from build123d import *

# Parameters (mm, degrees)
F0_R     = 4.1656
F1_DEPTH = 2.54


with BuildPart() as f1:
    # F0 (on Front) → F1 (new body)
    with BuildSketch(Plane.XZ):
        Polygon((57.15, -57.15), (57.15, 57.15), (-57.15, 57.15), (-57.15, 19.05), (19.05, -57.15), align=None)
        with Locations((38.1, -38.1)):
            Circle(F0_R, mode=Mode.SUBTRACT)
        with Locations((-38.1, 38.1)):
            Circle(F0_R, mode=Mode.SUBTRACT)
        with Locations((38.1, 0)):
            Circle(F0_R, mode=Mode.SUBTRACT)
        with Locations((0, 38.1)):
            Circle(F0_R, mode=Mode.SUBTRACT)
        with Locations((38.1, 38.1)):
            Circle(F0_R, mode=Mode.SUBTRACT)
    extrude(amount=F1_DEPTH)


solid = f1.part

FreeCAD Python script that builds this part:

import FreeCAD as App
import Part
import Sketcher

V = App.Vector
Q = App.Units.Quantity


def add_polygon(sketch, points):
    """Adds a closed chain of lines whose ends are joined by coincident constraints."""
    first, n = sketch.GeometryCount, len(points)
    for a, b in zip(points, points[1:] + points[:1]):
        sketch.addGeometry(Part.LineSegment(App.Vector(*a, 0), App.Vector(*b, 0)), False)
    for i in range(n):
        sketch.addConstraint(Sketcher.Constraint("Coincident", first + i, 2, first + (i + 1) % n, 1))

doc = App.newDocument("Part")
body = doc.addObject("PartDesign::Body", "Body")

# Sketch on XZ plane
sketch1 = doc.addObject("Sketcher::SketchObject", "Sketch")
body.addObject(sketch1)
sketch1.AttachmentSupport = (doc.XZ_Plane, [""])
sketch1.MapMode = "FlatFace"
add_polygon(sketch1, [(57.15, -57.15), (57.15, 57.15), (-57.15, 57.15), (-57.15, 19.05), (19.05, -57.15)])  # lines 0-4
sketch1.addGeometry(Part.Circle(V(38.1, -38.1, 0), V(0, 0, 1), 4.1656), False)  # 5
sketch1.addGeometry(Part.Circle(V(-38.1, 38.1, 0), V(0, 0, 1), 4.1656), False)  # 6
sketch1.addGeometry(Part.Circle(V(38.1, 0, 0), V(0, 0, 1), 4.1656), False)  # 7
sketch1.addGeometry(Part.Circle(V(0, 38.1, 0), V(0, 0, 1), 4.1656), False)  # 8
sketch1.addGeometry(Part.Circle(V(38.1, 38.1, 0), V(0, 0, 1), 4.1656), False)  # 9
sketch1.addConstraint([
    Sketcher.Constraint("Vertical", 0),
    Sketcher.Constraint("Horizontal", 1),
    Sketcher.Constraint("Vertical", 2),
    Sketcher.Constraint("Horizontal", 4),
    Sketcher.Constraint("Equal", 5, 6),
    Sketcher.Constraint("Equal", 6, 7),
    Sketcher.Constraint("Equal", 7, 8),
    Sketcher.Constraint("Equal", 8, 9),
    Sketcher.Constraint("Symmetric", 5, 3, 6, 3, -1, 1),
    Sketcher.Constraint("Symmetric", 1, 2, 4, 2, -1, 1),
    Sketcher.Constraint("Symmetric", 6, 3, 9, 3, -2),
    Sketcher.Constraint("PointOnObject", 7, 3, -1),
    Sketcher.Constraint("PointOnObject", 8, 3, -2),
    Sketcher.Constraint("Horizontal", 6, 3, 8, 3),
    Sketcher.Constraint("Vertical", 5, 3, 7, 3),
    Sketcher.Constraint("Equal", 1, 0),
    Sketcher.Constraint("Equal", 4, 2),
    Sketcher.Constraint("Diameter", 5, Q("0.328 in")),
    Sketcher.Constraint("DistanceX", 1, 2, 1, 1, Q("4.5 in")),
    Sketcher.Constraint("DistanceX", 4, 1, 4, 2, Q("1.5 in")),
    Sketcher.Constraint("DistanceX", 6, 3, 5, 3, Q("3 in")),
    Sketcher.Constraint("DistanceY", 5, 3, 6, 3, Q("3 in")),
])
pad1 = doc.addObject("PartDesign::Pad", "Pad")
body.addObject(pad1)
pad1.Profile = sketch1
pad1.Length = Q("0.1 in")

doc.recompute()
